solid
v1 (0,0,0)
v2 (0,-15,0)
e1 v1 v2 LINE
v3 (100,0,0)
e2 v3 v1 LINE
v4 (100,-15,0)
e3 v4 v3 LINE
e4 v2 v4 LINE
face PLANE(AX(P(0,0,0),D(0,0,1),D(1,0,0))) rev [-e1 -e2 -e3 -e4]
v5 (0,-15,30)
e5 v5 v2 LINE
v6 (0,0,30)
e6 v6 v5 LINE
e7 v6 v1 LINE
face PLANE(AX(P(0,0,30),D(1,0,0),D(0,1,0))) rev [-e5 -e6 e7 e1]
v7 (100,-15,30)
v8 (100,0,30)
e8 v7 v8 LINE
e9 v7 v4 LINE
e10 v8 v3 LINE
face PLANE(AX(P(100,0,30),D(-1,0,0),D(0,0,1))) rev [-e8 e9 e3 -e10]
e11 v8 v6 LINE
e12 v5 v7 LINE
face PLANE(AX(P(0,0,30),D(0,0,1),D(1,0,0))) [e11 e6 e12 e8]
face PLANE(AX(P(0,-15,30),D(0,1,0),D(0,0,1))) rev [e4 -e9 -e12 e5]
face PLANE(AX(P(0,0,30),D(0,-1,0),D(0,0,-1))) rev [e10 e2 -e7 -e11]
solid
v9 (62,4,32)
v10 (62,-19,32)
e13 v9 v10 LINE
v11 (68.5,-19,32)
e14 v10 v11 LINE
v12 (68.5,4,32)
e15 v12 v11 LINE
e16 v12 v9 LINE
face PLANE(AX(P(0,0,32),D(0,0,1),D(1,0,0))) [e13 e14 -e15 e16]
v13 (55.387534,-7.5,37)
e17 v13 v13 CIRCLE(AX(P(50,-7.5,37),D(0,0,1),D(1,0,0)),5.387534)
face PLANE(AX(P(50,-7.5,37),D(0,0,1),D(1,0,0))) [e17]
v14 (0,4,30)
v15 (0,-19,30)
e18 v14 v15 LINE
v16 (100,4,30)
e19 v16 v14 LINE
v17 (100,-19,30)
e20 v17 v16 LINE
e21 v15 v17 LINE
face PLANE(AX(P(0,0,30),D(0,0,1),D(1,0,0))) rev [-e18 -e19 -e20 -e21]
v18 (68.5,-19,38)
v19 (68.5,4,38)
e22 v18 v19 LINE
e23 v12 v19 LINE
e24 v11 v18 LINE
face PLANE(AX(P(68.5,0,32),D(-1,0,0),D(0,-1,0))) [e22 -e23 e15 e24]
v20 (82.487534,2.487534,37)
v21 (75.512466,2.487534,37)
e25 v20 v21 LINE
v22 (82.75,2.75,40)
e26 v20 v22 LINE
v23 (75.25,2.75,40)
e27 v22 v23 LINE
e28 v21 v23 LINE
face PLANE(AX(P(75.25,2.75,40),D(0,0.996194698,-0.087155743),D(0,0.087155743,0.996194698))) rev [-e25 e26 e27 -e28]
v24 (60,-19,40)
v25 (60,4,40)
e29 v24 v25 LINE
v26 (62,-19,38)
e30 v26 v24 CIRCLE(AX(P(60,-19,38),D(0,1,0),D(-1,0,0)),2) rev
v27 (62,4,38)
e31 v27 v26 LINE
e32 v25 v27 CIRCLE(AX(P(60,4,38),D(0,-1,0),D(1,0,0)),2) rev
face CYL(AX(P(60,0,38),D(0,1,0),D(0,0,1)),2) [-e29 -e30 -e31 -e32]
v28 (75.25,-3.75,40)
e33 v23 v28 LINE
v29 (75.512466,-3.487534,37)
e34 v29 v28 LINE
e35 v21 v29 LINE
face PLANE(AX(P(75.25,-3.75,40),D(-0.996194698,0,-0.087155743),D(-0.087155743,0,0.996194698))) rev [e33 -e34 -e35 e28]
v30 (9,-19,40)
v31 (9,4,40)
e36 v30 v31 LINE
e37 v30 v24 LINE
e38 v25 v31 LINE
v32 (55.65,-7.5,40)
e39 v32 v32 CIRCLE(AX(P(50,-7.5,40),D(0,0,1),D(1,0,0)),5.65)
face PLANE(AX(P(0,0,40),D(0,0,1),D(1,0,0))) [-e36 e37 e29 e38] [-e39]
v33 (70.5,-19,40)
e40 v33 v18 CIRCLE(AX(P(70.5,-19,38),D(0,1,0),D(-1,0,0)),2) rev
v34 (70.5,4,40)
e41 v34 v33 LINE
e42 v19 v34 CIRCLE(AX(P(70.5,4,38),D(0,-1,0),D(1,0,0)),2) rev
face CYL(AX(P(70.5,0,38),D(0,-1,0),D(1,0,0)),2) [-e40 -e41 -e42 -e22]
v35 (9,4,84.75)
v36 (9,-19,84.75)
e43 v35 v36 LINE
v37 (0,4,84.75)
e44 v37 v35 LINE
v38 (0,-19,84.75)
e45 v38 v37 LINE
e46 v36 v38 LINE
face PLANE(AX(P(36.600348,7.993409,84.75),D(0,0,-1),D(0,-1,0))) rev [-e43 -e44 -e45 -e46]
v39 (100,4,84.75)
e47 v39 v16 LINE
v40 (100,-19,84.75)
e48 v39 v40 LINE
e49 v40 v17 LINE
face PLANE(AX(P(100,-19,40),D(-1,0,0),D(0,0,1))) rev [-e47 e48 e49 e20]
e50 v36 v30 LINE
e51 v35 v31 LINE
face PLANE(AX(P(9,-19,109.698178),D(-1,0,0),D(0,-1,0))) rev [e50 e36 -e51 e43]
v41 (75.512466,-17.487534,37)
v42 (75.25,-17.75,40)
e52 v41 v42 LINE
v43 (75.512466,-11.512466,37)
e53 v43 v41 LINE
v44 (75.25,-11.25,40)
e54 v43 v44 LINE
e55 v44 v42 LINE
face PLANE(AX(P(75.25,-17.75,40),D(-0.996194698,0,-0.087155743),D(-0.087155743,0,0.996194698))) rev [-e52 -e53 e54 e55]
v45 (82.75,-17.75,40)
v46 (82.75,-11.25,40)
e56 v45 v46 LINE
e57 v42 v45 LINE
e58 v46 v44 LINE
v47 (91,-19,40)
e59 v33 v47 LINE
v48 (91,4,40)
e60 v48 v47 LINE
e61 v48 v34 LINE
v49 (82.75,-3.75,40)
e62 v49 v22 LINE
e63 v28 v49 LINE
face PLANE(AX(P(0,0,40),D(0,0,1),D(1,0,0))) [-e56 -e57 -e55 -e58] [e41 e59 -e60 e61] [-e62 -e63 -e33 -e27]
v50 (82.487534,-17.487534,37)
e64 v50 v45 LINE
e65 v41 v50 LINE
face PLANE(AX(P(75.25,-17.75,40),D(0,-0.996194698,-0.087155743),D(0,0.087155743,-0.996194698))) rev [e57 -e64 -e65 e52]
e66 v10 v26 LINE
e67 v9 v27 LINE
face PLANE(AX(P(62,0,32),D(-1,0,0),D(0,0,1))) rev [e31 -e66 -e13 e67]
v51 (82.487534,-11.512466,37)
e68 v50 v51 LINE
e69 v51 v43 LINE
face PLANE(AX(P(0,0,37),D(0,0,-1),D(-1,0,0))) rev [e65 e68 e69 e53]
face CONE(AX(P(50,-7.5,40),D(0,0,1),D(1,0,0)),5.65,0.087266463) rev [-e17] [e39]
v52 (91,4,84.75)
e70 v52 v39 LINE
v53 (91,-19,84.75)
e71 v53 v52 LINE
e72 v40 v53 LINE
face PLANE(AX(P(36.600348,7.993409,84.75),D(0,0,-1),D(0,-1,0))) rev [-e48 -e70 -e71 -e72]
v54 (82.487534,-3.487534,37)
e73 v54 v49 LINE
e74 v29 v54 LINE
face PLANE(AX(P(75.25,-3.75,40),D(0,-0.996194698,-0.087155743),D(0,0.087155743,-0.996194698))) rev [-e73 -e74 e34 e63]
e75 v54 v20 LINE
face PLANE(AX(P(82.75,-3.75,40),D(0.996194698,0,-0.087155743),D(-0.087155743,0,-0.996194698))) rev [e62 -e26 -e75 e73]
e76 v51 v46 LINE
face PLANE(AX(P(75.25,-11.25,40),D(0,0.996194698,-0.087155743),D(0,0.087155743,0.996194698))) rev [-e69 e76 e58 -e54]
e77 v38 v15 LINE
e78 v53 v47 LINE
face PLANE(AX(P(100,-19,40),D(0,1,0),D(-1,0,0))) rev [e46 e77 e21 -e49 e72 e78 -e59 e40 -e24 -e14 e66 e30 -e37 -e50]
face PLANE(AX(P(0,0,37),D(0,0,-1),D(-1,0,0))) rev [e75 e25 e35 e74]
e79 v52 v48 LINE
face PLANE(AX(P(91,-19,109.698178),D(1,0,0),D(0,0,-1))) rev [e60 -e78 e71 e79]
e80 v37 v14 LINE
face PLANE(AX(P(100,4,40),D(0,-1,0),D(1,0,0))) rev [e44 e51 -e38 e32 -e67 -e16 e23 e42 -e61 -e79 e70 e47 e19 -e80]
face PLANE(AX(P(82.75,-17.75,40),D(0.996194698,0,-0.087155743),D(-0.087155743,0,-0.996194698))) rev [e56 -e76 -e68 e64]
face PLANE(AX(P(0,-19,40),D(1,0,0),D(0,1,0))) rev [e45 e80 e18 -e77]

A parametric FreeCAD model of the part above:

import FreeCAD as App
import Part
import Sketcher
Q = App.Units.Quantity


def edges_at(feature, points):
    """Names of the edges that pass closest to the given points."""
    edges = feature.Shape.Edges
    near = lambda p: min(range(len(edges)), key=lambda i: edges[i].distToShape(Part.Vertex(*p))[0])
    return sorted({f"Edge{near(p) + 1}" for p in points})


def faces_at(feature, points):
    """Names of the faces that lie closest to the given points."""
    faces = feature.Shape.Faces
    near = lambda p: min(range(len(faces)), key=lambda i: faces[i].distToShape(Part.Vertex(*p))[0])
    return sorted({f"Face{near(p) + 1}" for p in points})


def add_polygon(sketch, points):
    """Adds a closed chain of lines whose ends are joined by coincident constraints."""
    first, n = sketch.GeometryCount, len(points)
    for a, b in zip(points, points[1:] + points[:1]):
        sketch.addGeometry(Part.LineSegment(App.Vector(*a, 0), App.Vector(*b, 0)), False)
    for i in range(n):
        sketch.addConstraint(Sketcher.Constraint("Coincident", first + i, 2, first + (i + 1) % n, 1))

doc = App.newDocument("Part")
params = doc.addObject("Spreadsheet::Sheet", "Params")
for row, (alias, value) in enumerate([
    ("sketch1_width", "100 mm"),
    ("sketch1_height", "15 mm"),
    ("pad1_length", "30 mm"),
    ("sketch2_width", "100 mm"),
    ("sketch2_height", "23 mm"),
    ("pad2_length", "10 mm"),
    ("sketch3_height", "23 mm"),
    ("sketch3_width", "6.5 mm"),
    ("pocket1_length", "8 mm"),
    ("fillet_radius", "2 mm"),
    ("sketch4_width", "9 mm"),
    ("sketch4_height", "23 mm"),
    ("pad3_length", "44.75 mm"),
    ("sketch5_diameter", "11.3 mm"),
    ("pad4_length", "3 mm"),
    ("draft_angle", "5 deg"),
    ("sketch6_width", "7.5 mm"),
    ("sketch6_height", "6.5 mm"),
    ("pad5_length", "3 mm"),
    ("draft2_angle", "5 deg"),
    ("sketch7_width", "7.5 mm"),
    ("sketch7_height", "6.5 mm"),
    ("pad6_length", "3 mm"),
    ("draft3_angle", "5 deg"),
], start=1):
    params.set(f"A{row}", alias)
    params.set(f"B{row}", "=" + value)
    params.setAlias(f"B{row}", alias)

body = doc.addObject("PartDesign::Body", "Body")

# Sketch on XY plane
sketch1 = doc.addObject("Sketcher::SketchObject", "Sketch")
body.addObject(sketch1)
sketch1.AttachmentSupport = (doc.XY_Plane, [""])
sketch1.MapMode = "FlatFace"
add_polygon(sketch1, [(0, 0), (0, -15), (100, -15), (100, 0)])  # lines 0-3
sketch1.addConstraint([
    Sketcher.Constraint("Vertical", 0),
    Sketcher.Constraint("Horizontal", 1),
    Sketcher.Constraint("Vertical", 2),
    Sketcher.Constraint("Horizontal", 3),
    Sketcher.Constraint("Coincident", 3, 2, -1, 1),
    Sketcher.Constraint("DistanceX", 1, 1, 1, 2, Q("100 mm")),
    Sketcher.Constraint("DistanceY", 0, 2, 0, 1, Q("15 mm")),
])
sketch1.setExpression("Constraints[9]", "Params.sketch1_width")
sketch1.setExpression("Constraints[10]", "Params.sketch1_height")
pad1 = doc.addObject("PartDesign::Pad", "Pad")
body.addObject(pad1)
pad1.Profile = sketch1
pad1.setExpression("Length", "Params.pad1_length")
body2 = doc.addObject("PartDesign::Body", "Body001")

# Sketch on XY plane
sketch2 = doc.addObject("Sketcher::SketchObject", "Sketch001")
body2.addObject(sketch2)
sketch2.AttachmentSupport = (doc.getObject("XY_Plane001"), [""])
sketch2.MapMode = "FlatFace"
sketch2.AttachmentOffset = App.Placement(App.Vector(0, 0, 30), App.Rotation())
add_polygon(sketch2, [(0, 4), (0, -19), (100, -19), (100, 4)])  # lines 0-3
sketch2.addConstraint([
    Sketcher.Constraint("Vertical", 0),
    Sketcher.Constraint("Horizontal", 1),
    Sketcher.Constraint("Vertical", 2),
    Sketcher.Constraint("Horizontal", 3),
    Sketcher.Constraint("PointOnObject", 0, 2, -2),
    Sketcher.Constraint("DistanceX", 1, 1, 1, 2, Q("100 mm")),
    Sketcher.Constraint("DistanceY", 0, 2, 0, 1, Q("23 mm")),
    Sketcher.Constraint("DistanceY", 0, 2, -1, 1, Q("19 mm")),
])
sketch2.setExpression("Constraints[9]", "Params.sketch2_width")
sketch2.setExpression("Constraints[10]", "Params.sketch2_height")
pad2 = doc.addObject("PartDesign::Pad", "Pad001")
body2.addObject(pad2)
pad2.Profile = sketch2
pad2.setExpression("Length", "Params.pad2_length")

# Sketch on XY plane
sketch3 = doc.addObject("Sketcher::SketchObject", "Sketch002")
body2.addObject(sketch3)
sketch3.AttachmentSupport = (doc.getObject("XY_Plane001"), [""])
sketch3.MapMode = "FlatFace"
sketch3.AttachmentOffset = App.Placement(App.Vector(0, 0, 40), App.Rotation())
add_polygon(sketch3, [(62, 4), (62, -19), (68, -19), (68, 4)])  # lines 0-3
sketch3.addConstraint([
    Sketcher.Constraint("Vertical", 0),
    Sketcher.Constraint("Horizontal", 1),
    Sketcher.Constraint("Vertical", 2),
    Sketcher.Constraint("Horizontal", 3),
    Sketcher.Constraint("DistanceY", 0, 2, 0, 1, Q("23 mm")),
    Sketcher.Constraint("DistanceX", 1, 1, 1, 2, Q("6.5 mm")),
    Sketcher.Constraint("DistanceX", -1, 1, 0, 2, Q("62 mm")),
    Sketcher.Constraint("DistanceY", 0, 2, -1, 1, Q("19 mm")),
])
sketch3.setExpression("Constraints[8]", "Params.sketch3_height")
sketch3.setExpression("Constraints[9]", "Params.sketch3_width")
pocket1 = doc.addObject("PartDesign::Pocket", "Pocket")
body2.addObject(pocket1)
pocket1.Profile = sketch3
pocket1.setExpression("Length", "Params.pocket1_length")
doc.recompute()

fillet = doc.addObject("PartDesign::Fillet", "Fillet")
body2.addObject(fillet)
fillet.Base = (pocket1, edges_at(pocket1, [(68.5, -7.5, 40), (62, -7.5, 40)]))
fillet.setExpression("Radius", "Params.fillet_radius")

# Sketch on XY plane
sketch4 = doc.addObject("Sketcher::SketchObject", "Sketch003")
body2.addObject(sketch4)
sketch4.AttachmentSupport = (doc.getObject("XY_Plane001"), [""])
sketch4.MapMode = "FlatFace"
sketch4.AttachmentOffset = App.Placement(App.Vector(0, 0, 40), App.Rotation())
add_polygon(sketch4, [(91, 4), (91, -19), (100, -19), (100, 4)])  # lines 0-3
add_polygon(sketch4, [(0, 4), (0, -19), (9, -19), (9, 4)])  # lines 4-7
sketch4.addConstraint([
    Sketcher.Constraint("Vertical", 0),
    Sketcher.Constraint("Horizontal", 1),
    Sketcher.Constraint("Vertical", 2),
    Sketcher.Constraint("Horizontal", 3),
    Sketcher.Constraint("Vertical", 4),
    Sketcher.Constraint("Horizontal", 5),
    Sketcher.Constraint("Vertical", 6),
    Sketcher.Constraint("Horizontal", 7),
    Sketcher.Constraint("PointOnObject", 4, 2, -2),
    Sketcher.Constraint("Horizontal", 1, 2, 4, 2),
    Sketcher.Constraint("Horizontal", 3, 2, 6, 2),
    Sketcher.Constraint("Equal", 3, 5),
    Sketcher.Constraint("DistanceX", 1, 1, 1, 2, Q("9 mm")),
    Sketcher.Constraint("DistanceY", 0, 2, 0, 1, Q("23 mm")),
    Sketcher.Constraint("DistanceX", -1, 1, 0, 2, Q("91 mm")),
    Sketcher.Constraint("DistanceY", 0, 2, -1, 1, Q("19 mm")),
])
sketch4.setExpression("Constraints[20]", "Params.sketch4_width")
sketch4.setExpression("Constraints[21]", "Params.sketch4_height")
pad3 = doc.addObject("PartDesign::Pad", "Pad002")
body2.addObject(pad3)
pad3.Profile = sketch4
pad3.setExpression("Length", "Params.pad3_length")
body3 = doc.addObject("PartDesign::Body", "Body002")

# Sketch on XY plane
sketch5 = doc.addObject("Sketcher::SketchObject", "Sketch004")
body3.addObject(sketch5)
sketch5.AttachmentSupport = (doc.getObject("XY_Plane002"), [""])
sketch5.MapMode = "FlatFace"
sketch5.AttachmentOffset = App.Placement(App.Vector(0, 0, 40), App.Rotation())
sketch5.addGeometry(Part.Circle(App.Vector(50, -8, 0), App.Vector(0, 0, 1), 6), False)
sketch5.addConstraint([
    Sketcher.Constraint("Diameter", 0, Q("11.3 mm")),
    Sketcher.Constraint("DistanceX", -1, 1, 0, 3, Q("50 mm")),
    Sketcher.Constraint("DistanceY", 0, 3, -1, 1, Q("7.5 mm")),
])
sketch5.setExpression("Constraints[0]", "Params.sketch5_diameter")
pad4 = doc.addObject("PartDesign::Pad", "Pad003")
body3.addObject(pad4)
pad4.Profile = sketch5
pad4.setExpression("Length", "Params.pad4_length")
pad4.Reversed = True
doc.recompute()

datumplane = doc.addObject("PartDesign::Plane", "DatumPlane")
body3.addObject(datumplane)
datumplane.AttachmentSupport = (doc.getObject("XY_Plane002"), [""])
datumplane.MapMode = "FlatFace"
datumplane.AttachmentOffset = App.Placement(App.Vector(0, 0, 40), App.Rotation())
draft = doc.addObject("PartDesign::Draft", "Draft")
body3.addObject(draft)
draft.Base = (pad4, faces_at(pad4, [(44.35, -7.5, 38.5)]))
draft.NeutralPlane = (datumplane, [""])
draft.setExpression("Angle", "Params.draft_angle")
draft.Reversed = True
doc.recompute()

boolean = doc.addObject("PartDesign::Boolean", "Boolean")
body2.addObject(boolean)
boolean.Type = "Cut"
boolean.addObjects([body3])
body4 = doc.addObject("PartDesign::Body", "Body003")

# Sketch on XY plane
sketch6 = doc.addObject("Sketcher::SketchObject", "Sketch005")
body4.addObject(sketch6)
sketch6.AttachmentSupport = (doc.getObject("XY_Plane003"), [""])
sketch6.MapMode = "FlatFace"
sketch6.AttachmentOffset = App.Placement(App.Vector(0, 0, 40), App.Rotation())
add_polygon(sketch6, [(75, -11), (75, -18), (83, -18), (83, -11)])  # lines 0-3
sketch6.addConstraint([
    Sketcher.Constraint("Vertical", 0),
    Sketcher.Constraint("Horizontal", 1),
    Sketcher.Constraint("Vertical", 2),
    Sketcher.Constraint("Horizontal", 3),
    Sketcher.Constraint("DistanceX", 1, 1, 1, 2, Q("7.5 mm")),
    Sketcher.Constraint("DistanceY", 0, 2, 0, 1, Q("6.5 mm")),
    Sketcher.Constraint("DistanceX", -1, 1, 0, 2, Q("75.25 mm")),
    Sketcher.Constraint("DistanceY", 0, 2, -1, 1, Q("17.75 mm")),
])
sketch6.setExpression("Constraints[8]", "Params.sketch6_width")
sketch6.setExpression("Constraints[9]", "Params.sketch6_height")
pad5 = doc.addObject("PartDesign::Pad", "Pad004")
body4.addObject(pad5)
pad5.Profile = sketch6
pad5.setExpression("Length", "Params.pad5_length")
pad5.Reversed = True
doc.recompute()

datumplane2 = doc.addObject("PartDesign::Plane", "DatumPlane001")
body4.addObject(datumplane2)
datumplane2.AttachmentSupport = (doc.getObject("XY_Plane003"), [""])
datumplane2.MapMode = "FlatFace"
datumplane2.AttachmentOffset = App.Placement(App.Vector(0, 0, 40), App.Rotation())
draft2 = doc.addObject("PartDesign::Draft", "Draft001")
body4.addObject(draft2)
draft2.Base = (pad5, faces_at(pad5, [
    (79, -17.75, 38.5),
    (82.75, -14.5, 38.5),
    (79, -11.25, 38.5),
    (75.25, -14.5, 38.5),
]))
draft2.NeutralPlane = (datumplane2, [""])
draft2.setExpression("Angle", "Params.draft2_angle")
draft2.Reversed = True
doc.recompute()

boolean2 = doc.addObject("PartDesign::Boolean", "Boolean001")
body2.addObject(boolean2)
boolean2.Type = "Cut"
boolean2.addObjects([body4])
body5 = doc.addObject("PartDesign::Body", "Body004")

# Sketch on XY plane
sketch7 = doc.addObject("Sketcher::SketchObject", "Sketch006")
body5.addObject(sketch7)
sketch7.AttachmentSupport = (doc.getObject("XY_Plane004"), [""])
sketch7.MapMode = "FlatFace"
sketch7.AttachmentOffset = App.Placement(App.Vector(0, 0, 40), App.Rotation())
add_polygon(sketch7, [(75, 3), (75, -4), (83, -4), (83, 3)])  # lines 0-3
sketch7.addConstraint([
    Sketcher.Constraint("Vertical", 0),
    Sketcher.Constraint("Horizontal", 1),
    Sketcher.Constraint("Vertical", 2),
    Sketcher.Constraint("Horizontal", 3),
    Sketcher.Constraint("DistanceX", 1, 1, 1, 2, Q("7.5 mm")),
    Sketcher.Constraint("DistanceY", 0, 2, 0, 1, Q("6.5 mm")),
    Sketcher.Constraint("DistanceX", -1, 1, 0, 2, Q("75.25 mm")),
    Sketcher.Constraint("DistanceY", 0, 2, -1, 1, Q("3.75 mm")),
])
sketch7.setExpression("Constraints[8]", "Params.sketch7_width")
sketch7.setExpression("Constraints[9]", "Params.sketch7_height")
pad6 = doc.addObject("PartDesign::Pad", "Pad005")
body5.addObject(pad6)
pad6.Profile = sketch7
pad6.setExpression("Length", "Params.pad6_length")
pad6.Reversed = True
doc.recompute()

datumplane3 = doc.addObject("PartDesign::Plane", "DatumPlane002")
body5.addObject(datumplane3)
datumplane3.AttachmentSupport = (doc.getObject("XY_Plane004"), [""])
datumplane3.MapMode = "FlatFace"
datumplane3.AttachmentOffset = App.Placement(App.Vector(0, 0, 40), App.Rotation())
draft3 = doc.addObject("PartDesign::Draft", "Draft002")
body5.addObject(draft3)
draft3.Base = (pad6, faces_at(pad6, [
    (79, -3.75, 38.5),
    (82.75, -0.5, 38.5),
    (79, 2.75, 38.5),
    (75.25, -0.5, 38.5),
]))
draft3.NeutralPlane = (datumplane3, [""])
draft3.setExpression("Angle", "Params.draft3_angle")
draft3.Reversed = True
doc.recompute()

boolean3 = doc.addObject("PartDesign::Boolean", "Boolean002")
body2.addObject(boolean3)
boolean3.Type = "Cut"
boolean3.addObjects([body5])

doc.recompute()
